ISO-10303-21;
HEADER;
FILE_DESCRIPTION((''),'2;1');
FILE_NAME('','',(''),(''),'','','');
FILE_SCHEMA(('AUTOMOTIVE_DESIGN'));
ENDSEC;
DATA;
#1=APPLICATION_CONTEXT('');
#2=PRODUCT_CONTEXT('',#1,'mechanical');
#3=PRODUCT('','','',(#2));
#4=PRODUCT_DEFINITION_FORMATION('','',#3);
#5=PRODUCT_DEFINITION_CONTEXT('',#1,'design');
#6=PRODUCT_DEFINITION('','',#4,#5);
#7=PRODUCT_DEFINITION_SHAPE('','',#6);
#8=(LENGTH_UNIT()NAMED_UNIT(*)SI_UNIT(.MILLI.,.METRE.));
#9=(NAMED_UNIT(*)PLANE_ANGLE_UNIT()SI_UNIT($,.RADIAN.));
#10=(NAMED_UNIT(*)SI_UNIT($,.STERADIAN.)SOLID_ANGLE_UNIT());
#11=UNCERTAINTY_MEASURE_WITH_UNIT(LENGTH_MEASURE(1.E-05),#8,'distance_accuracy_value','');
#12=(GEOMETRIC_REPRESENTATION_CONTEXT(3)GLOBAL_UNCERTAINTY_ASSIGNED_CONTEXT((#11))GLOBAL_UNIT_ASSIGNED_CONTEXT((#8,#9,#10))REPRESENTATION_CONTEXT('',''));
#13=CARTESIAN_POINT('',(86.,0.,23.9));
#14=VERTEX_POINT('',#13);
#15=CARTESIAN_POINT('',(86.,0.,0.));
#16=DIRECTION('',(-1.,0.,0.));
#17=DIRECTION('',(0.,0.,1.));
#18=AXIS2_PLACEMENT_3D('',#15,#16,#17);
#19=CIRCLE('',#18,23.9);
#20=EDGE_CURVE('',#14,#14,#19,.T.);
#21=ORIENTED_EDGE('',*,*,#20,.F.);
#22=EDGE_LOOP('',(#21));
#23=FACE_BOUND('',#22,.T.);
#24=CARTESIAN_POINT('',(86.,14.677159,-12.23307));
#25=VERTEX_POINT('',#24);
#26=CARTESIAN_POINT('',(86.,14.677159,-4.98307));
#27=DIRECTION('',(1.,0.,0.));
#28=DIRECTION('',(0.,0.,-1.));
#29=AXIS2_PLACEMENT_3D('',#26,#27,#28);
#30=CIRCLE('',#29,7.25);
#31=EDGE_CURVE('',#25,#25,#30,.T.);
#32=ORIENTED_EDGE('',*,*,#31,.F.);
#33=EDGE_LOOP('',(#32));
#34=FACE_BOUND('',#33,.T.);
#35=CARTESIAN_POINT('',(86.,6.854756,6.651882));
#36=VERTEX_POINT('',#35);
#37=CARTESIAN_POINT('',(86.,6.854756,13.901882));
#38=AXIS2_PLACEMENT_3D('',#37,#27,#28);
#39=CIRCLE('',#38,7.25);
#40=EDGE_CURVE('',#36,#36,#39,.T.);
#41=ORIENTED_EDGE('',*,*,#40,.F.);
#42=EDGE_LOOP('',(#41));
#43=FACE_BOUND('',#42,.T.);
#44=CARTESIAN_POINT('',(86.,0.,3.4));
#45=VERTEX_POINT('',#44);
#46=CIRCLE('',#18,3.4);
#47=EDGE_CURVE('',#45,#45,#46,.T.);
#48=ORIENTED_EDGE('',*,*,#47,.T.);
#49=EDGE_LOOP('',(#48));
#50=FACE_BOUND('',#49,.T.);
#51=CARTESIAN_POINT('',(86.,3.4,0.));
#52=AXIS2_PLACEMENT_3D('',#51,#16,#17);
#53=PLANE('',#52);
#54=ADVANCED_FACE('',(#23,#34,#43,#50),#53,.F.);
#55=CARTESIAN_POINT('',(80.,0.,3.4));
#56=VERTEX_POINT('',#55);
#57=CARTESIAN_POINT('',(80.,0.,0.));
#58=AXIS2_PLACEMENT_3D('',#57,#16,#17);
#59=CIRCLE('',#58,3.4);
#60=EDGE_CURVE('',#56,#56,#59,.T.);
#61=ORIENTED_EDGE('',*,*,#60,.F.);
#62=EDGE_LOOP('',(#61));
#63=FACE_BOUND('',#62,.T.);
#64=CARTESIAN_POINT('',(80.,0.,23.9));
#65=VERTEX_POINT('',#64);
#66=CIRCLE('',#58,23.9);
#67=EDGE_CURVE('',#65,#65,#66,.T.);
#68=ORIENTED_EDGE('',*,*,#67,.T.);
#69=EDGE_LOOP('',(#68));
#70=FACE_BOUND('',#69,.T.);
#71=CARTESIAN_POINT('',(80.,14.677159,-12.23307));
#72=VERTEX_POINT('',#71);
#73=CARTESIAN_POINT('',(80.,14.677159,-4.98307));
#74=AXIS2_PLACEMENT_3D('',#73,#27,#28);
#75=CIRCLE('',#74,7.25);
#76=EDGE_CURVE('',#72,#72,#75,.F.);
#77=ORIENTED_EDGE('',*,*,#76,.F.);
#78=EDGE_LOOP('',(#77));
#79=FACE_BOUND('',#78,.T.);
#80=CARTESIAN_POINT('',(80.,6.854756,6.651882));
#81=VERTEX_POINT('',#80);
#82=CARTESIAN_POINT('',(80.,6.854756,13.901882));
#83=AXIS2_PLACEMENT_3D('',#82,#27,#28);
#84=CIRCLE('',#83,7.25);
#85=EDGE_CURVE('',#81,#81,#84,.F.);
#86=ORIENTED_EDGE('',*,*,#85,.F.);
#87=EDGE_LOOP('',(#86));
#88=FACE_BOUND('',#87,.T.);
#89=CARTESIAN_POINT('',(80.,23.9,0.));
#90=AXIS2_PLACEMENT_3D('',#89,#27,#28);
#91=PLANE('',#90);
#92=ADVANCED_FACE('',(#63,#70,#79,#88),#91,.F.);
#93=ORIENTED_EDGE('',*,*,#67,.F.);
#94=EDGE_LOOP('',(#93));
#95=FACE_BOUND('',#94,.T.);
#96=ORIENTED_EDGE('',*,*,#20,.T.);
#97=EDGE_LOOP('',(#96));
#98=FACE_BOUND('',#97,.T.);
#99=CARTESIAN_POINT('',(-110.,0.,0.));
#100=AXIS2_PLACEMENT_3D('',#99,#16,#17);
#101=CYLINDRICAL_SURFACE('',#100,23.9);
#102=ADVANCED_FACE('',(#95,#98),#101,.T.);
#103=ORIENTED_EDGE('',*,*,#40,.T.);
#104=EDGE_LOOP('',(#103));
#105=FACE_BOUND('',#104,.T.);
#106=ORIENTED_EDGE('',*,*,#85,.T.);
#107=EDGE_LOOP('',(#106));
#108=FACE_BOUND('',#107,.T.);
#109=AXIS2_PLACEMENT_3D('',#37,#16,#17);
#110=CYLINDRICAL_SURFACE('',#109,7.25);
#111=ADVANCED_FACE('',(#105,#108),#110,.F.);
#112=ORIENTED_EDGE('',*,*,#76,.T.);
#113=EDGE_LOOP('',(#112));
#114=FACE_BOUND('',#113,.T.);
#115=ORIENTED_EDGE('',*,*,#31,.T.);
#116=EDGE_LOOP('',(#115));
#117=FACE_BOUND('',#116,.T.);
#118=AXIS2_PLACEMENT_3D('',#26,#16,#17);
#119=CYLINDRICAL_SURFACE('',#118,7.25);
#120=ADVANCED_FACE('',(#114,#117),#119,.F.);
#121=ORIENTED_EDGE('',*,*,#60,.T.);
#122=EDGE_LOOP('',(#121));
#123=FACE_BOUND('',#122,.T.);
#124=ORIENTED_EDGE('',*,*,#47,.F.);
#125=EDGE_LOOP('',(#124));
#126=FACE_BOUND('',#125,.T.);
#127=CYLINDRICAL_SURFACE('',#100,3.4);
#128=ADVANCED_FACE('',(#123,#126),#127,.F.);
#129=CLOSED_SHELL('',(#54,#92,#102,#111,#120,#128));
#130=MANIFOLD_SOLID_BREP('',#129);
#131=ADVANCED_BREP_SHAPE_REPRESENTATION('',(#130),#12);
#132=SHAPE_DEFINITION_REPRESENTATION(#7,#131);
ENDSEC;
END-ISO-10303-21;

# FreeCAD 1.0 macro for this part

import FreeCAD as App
import Part
import Sketcher

V = App.Vector


def add_polygon(sketch, points):
    """Adds a closed chain of lines whose ends are joined by coincident constraints."""
    first, n = sketch.GeometryCount, len(points)
    for a, b in zip(points, points[1:] + points[:1]):
        sketch.addGeometry(Part.LineSegment(App.Vector(*a, 0), App.Vector(*b, 0)), False)
    for i in range(n):
        sketch.addConstraint(Sketcher.Constraint("Coincident", first + i, 2, first + (i + 1) % n, 1))

doc = App.newDocument("Part")
body = doc.addObject("PartDesign::Body", "Body")

# Sketch on XY plane
sketch1 = body.newObject("Sketcher::SketchObject", "Sketch")
sketch1.AttachmentSupport = (doc.getObject("XY_Plane"), [""])
sketch1.MapMode = "FlatFace"
add_polygon(sketch1, [(80, 24), (80, 3), (86, 3), (86, 24)])  # lines 0-3
sketch1.addConstraint([
    Sketcher.Constraint("Vertical", 0),
    Sketcher.Constraint("Horizontal", 1),
    Sketcher.Constraint("Vertical", 2),
    Sketcher.Constraint("Horizontal", 3),
    Sketcher.Constraint("DistanceX", 1, 1, 1, 2, 6.0),
    Sketcher.Constraint("DistanceY", 0, 2, 0, 1, 20.5),
    Sketcher.Constraint("DistanceX", -1, 1, 0, 2, 80.0),
    Sketcher.Constraint("DistanceY", -1, 1, 0, 2, 3.4),
])
revolution = body.newObject("PartDesign::Revolution", "Revolution")
revolution.Profile = sketch1
revolution.ReferenceAxis = (sketch1, ["H_Axis"])
revolution.Angle = 360

# Sketch on YZ plane
sketch2 = body.newObject("Sketcher::SketchObject", "Sketch001")
sketch2.AttachmentSupport = (doc.getObject("YZ_Plane"), [""])
sketch2.MapMode = "FlatFace"
sketch2.addGeometry([
    Part.Circle(V(15, -5, 0), V(0, 0, 1), 7),
    Part.Circle(V(7, 14, 0), V(0, 0, 1), 7),
], False)
sketch2.addConstraint([
    Sketcher.Constraint("Equal", 0, 1),
    Sketcher.Constraint("Diameter", 0, 14.5),
    Sketcher.Constraint("DistanceX", -1, 1, 0, 3, 14.677159),
    Sketcher.Constraint("DistanceY", 0, 3, -1, 1, 4.98307),
    Sketcher.Constraint("DistanceY", -1, 1, 1, 3, 13.901882),
    Sketcher.Constraint("DistanceX", -1, 1, 1, 3, 6.854756),
])
pocket1 = body.newObject("PartDesign::Pocket", "Pocket")
pocket1.Profile = sketch2
pocket1.Type = "ThroughAll"
pocket1.Midplane = True

doc.recompute()
